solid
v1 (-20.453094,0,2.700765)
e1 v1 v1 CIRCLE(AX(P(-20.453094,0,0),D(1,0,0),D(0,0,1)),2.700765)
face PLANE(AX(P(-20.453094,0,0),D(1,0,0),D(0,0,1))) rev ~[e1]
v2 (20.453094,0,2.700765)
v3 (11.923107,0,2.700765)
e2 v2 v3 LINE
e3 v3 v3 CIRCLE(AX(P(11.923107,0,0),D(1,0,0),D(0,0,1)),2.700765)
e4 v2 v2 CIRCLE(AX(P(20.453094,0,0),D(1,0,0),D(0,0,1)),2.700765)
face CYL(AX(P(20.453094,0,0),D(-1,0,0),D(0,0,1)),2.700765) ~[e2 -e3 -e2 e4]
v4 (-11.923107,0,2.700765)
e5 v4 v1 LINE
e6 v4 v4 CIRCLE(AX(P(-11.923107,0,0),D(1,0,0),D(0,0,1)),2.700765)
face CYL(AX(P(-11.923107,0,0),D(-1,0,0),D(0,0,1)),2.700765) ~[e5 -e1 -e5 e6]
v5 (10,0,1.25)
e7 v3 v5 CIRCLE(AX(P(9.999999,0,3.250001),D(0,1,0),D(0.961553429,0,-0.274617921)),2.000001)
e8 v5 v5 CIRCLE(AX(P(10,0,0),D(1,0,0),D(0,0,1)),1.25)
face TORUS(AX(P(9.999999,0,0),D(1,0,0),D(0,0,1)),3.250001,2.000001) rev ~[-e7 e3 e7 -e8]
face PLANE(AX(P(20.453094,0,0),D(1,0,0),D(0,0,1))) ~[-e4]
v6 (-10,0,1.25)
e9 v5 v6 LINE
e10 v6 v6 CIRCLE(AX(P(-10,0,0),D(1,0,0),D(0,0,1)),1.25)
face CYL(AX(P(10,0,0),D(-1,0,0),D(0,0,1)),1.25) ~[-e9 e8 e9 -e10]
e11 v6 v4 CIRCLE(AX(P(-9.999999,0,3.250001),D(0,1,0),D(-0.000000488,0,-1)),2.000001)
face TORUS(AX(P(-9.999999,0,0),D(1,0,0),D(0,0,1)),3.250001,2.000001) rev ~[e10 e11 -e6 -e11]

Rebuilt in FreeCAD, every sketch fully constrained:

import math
import FreeCAD as App
import Part
import Sketcher
from FreeCAD import Vector
Q = App.Units.Quantity

doc = App.newDocument("Part")
body = doc.addObject("PartDesign::Body", "Body")

# Sketch on XZ plane
sketch1 = body.newObject("Sketcher::SketchObject", "Sketch")
sketch1.AttachmentSupport = (doc.getObject("XZ_Plane"), [""])
sketch1.MapMode = "FlatFace"
sketch1.addGeometry([
    Part.LineSegment(Vector(10, 1.2, 0), Vector(-10, 1.2, 0)),  # 0
    Part.ArcOfCircle(Part.Circle(Vector(-10, 3.3, 0), Vector(0, 0, 1), 2), math.radians(-164), math.radians(-90)),  # 1
    Part.LineSegment(Vector(-11.9, 2.7, 0), Vector(-20.5, 2.7, 0)),  # 2
    Part.LineSegment(Vector(-20.5, 2.7, 0), Vector(-20.5, 0, 0)),  # 3
    Part.LineSegment(Vector(-20.5, 0, 0), Vector(20.5, 0, 0)),  # 4
    Part.LineSegment(Vector(20.5, 0, 0), Vector(20.5, 2.7, 0)),  # 5
    Part.LineSegment(Vector(20.5, 2.7, 0), Vector(11.9, 2.7, 0)),  # 6
    Part.ArcOfCircle(Part.Circle(Vector(10, 3.3, 0), Vector(0, 0, 1), 2), math.radians(-90), math.radians(-16)),  # 7
], False)
sketch1.addConstraint([
    Sketcher.Constraint("Tangent", 0, 2, 1, 2),
    Sketcher.Constraint("Coincident", 1, 1, 2, 1),
    Sketcher.Constraint("Coincident", 2, 2, 3, 1),
    Sketcher.Constraint("Coincident", 3, 2, 4, 1),
    Sketcher.Constraint("Coincident", 4, 2, 5, 1),
    Sketcher.Constraint("Coincident", 5, 2, 6, 1),
    Sketcher.Constraint("Coincident", 6, 2, 7, 2),
    Sketcher.Constraint("Tangent", 7, 1, 0, 1),
    Sketcher.Constraint("Horizontal", 0),
    Sketcher.Constraint("Horizontal", 2),
    Sketcher.Constraint("Vertical", 3),
    Sketcher.Constraint("Horizontal", 4),
    Sketcher.Constraint("Vertical", 5),
    Sketcher.Constraint("Horizontal", 6),
    Sketcher.Constraint("Equal", 1, 7),
    Sketcher.Constraint("Symmetric", 3, 2, 4, 2, -1, 1),
    Sketcher.Constraint("Symmetric", 1, 1, 6, 2, -2),
    Sketcher.Constraint("Radius", 1, Q("2.000001 mm")),
    Sketcher.Constraint("DistanceX", 0, 2, 0, 1, Q("20 mm")),
    Sketcher.Constraint("DistanceY", -1, 1, 1, 3, Q("3.250001 mm")),
    Sketcher.Constraint("DistanceX", 1, 1, 4, 2, Q("32.376201 mm")),
    Sketcher.Constraint("DistanceX", 2, 2, 2, 1, Q("8.529987 mm")),
])
revolution = body.newObject("PartDesign::Revolution", "Revolution")
revolution.Profile = sketch1
revolution.ReferenceAxis = (sketch1, ["H_Axis"])
revolution.Angle = 360

doc.recompute()
